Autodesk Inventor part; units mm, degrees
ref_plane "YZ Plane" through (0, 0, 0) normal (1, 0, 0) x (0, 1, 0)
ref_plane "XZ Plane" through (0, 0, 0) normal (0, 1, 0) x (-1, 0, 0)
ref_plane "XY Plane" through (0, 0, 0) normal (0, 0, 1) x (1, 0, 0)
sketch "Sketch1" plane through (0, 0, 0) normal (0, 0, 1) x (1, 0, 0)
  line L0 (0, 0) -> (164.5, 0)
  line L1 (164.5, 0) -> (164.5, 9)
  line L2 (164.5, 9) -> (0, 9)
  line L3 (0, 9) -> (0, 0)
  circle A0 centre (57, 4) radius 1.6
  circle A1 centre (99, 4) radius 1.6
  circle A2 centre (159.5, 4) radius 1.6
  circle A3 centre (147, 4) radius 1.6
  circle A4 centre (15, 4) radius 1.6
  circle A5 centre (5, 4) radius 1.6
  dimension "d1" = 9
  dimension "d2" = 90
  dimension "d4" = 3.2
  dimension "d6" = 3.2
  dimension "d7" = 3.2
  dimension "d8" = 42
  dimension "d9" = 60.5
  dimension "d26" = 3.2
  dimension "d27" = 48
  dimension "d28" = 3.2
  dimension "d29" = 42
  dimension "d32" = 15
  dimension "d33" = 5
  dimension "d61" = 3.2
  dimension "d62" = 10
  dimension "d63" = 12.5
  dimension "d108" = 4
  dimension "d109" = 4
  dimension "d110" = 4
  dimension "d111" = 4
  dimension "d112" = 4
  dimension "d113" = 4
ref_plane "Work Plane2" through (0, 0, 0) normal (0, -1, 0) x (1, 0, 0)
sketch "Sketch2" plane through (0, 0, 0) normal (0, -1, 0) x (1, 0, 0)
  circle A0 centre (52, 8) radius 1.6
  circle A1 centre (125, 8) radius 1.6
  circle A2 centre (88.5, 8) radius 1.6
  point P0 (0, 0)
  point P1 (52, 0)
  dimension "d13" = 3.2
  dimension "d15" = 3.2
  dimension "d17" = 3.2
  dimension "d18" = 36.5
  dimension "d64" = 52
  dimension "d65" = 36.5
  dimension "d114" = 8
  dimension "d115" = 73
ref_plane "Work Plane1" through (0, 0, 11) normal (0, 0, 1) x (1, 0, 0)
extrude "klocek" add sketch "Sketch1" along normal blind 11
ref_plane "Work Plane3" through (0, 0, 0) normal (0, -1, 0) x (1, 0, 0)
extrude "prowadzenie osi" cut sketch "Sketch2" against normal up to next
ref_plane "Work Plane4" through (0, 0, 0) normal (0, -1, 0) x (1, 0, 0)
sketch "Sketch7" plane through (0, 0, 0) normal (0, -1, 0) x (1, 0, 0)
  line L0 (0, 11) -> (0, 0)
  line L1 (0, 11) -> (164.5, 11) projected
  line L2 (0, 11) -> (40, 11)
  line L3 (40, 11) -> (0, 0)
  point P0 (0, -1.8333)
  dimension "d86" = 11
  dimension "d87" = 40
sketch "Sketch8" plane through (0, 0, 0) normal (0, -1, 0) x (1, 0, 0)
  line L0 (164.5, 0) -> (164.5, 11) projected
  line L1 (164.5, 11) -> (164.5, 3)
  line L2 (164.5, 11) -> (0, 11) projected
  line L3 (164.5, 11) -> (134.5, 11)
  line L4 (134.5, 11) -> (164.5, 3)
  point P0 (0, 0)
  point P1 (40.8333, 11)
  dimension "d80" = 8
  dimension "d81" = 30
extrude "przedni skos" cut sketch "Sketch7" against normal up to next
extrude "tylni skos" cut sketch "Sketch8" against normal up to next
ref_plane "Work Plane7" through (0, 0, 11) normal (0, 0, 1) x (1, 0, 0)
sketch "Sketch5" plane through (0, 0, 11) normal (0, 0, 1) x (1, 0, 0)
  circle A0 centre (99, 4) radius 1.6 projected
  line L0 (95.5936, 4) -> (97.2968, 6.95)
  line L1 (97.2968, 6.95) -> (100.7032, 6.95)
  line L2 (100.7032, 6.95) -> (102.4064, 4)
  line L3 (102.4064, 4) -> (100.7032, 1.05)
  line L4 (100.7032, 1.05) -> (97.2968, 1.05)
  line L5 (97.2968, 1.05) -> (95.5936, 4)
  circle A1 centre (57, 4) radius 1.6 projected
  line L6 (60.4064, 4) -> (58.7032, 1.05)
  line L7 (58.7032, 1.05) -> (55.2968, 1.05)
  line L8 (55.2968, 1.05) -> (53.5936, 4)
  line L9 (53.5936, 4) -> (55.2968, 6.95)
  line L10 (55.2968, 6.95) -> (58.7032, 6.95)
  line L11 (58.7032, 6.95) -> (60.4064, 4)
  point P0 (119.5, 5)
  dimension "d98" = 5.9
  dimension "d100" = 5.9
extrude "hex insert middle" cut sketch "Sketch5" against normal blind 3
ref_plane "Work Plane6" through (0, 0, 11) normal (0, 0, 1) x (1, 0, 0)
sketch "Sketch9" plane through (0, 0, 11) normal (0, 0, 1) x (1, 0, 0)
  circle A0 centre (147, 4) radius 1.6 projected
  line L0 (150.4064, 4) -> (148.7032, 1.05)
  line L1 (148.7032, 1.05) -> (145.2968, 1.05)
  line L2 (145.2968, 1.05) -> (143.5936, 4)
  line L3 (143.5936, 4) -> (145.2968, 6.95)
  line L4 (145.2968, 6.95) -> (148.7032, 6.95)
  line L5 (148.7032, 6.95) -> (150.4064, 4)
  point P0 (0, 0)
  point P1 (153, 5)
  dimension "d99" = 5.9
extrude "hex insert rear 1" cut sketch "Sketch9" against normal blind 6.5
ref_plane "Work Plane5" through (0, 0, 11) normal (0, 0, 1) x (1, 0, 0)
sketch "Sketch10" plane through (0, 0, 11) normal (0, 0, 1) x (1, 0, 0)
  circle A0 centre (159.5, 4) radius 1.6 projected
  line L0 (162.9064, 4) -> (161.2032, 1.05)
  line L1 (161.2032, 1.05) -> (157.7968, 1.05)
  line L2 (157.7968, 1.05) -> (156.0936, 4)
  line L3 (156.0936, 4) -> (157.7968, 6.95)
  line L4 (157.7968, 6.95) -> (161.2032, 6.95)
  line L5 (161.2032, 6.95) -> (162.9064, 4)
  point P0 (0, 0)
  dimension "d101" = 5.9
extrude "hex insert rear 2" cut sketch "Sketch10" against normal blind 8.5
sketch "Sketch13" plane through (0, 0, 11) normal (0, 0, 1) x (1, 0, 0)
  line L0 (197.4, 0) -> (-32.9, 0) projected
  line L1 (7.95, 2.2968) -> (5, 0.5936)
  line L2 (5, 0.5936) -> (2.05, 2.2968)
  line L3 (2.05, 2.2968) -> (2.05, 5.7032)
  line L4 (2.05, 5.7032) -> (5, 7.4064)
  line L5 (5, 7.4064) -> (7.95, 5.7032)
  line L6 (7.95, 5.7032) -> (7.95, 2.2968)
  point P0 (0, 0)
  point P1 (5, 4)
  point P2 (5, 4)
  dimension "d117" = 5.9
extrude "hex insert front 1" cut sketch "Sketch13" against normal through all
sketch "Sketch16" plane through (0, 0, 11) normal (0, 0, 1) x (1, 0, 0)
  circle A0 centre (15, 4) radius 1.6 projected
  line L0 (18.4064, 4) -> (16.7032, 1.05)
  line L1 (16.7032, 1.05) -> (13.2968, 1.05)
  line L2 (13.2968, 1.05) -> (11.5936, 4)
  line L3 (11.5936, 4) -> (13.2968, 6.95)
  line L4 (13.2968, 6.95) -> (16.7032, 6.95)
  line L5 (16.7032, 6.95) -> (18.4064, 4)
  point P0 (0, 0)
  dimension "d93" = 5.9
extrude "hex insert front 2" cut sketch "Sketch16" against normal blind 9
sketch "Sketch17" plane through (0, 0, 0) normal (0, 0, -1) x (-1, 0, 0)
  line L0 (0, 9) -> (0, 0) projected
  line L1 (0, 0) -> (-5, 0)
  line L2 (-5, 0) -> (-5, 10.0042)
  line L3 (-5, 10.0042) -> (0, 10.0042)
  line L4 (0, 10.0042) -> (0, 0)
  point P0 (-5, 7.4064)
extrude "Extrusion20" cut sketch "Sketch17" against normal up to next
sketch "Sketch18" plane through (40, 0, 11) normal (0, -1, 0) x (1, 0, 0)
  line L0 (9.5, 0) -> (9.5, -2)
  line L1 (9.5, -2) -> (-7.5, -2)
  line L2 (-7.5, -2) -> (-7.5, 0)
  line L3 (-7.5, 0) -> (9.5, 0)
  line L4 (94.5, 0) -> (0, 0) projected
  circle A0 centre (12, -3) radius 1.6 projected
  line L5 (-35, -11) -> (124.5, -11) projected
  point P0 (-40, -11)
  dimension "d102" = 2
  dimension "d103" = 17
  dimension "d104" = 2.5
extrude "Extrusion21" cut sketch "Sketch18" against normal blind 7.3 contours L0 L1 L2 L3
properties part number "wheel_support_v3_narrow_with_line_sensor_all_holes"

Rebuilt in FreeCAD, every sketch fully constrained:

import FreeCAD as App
import Part
import Sketcher

V = App.Vector
Q = App.Units.Quantity


def add_polygon(sketch, points):
    """Adds a closed chain of lines whose ends are joined by coincident constraints."""
    first, n = sketch.GeometryCount, len(points)
    for a, b in zip(points, points[1:] + points[:1]):
        sketch.addGeometry(Part.LineSegment(App.Vector(*a, 0), App.Vector(*b, 0)), False)
    for i in range(n):
        sketch.addConstraint(Sketcher.Constraint("Coincident", first + i, 2, first + (i + 1) % n, 1))

doc = App.newDocument("Part")
body = doc.addObject("PartDesign::Body", "Body")

sketch1 = body.newObject("Sketcher::SketchObject", "Sketch")
sketch1.AttachmentSupport = (doc.getObject("XY_Plane"), [""])
sketch1.MapMode = "FlatFace"
add_polygon(sketch1, [(0, 9), (0, 0), (164.5, 0), (164.5, 9)])
sketch1.addGeometry(Part.Circle(V(5, 4, 0), V(0, 0, 1), 1.6), False)
sketch1.addGeometry(Part.Circle(V(15, 4, 0), V(0, 0, 1), 1.6), False)
sketch1.addGeometry(Part.Circle(V(57, 4, 0), V(0, 0, 1), 1.6), False)
sketch1.addGeometry(Part.Circle(V(99, 4, 0), V(0, 0, 1), 1.6), False)
sketch1.addGeometry(Part.Circle(V(147, 4, 0), V(0, 0, 1), 1.6), False)
sketch1.addGeometry(Part.Circle(V(159.5, 4, 0), V(0, 0, 1), 1.6), False)
sketch1.addConstraint(Sketcher.Constraint("Vertical", 0))
sketch1.addConstraint(Sketcher.Constraint("Horizontal", 1))
sketch1.addConstraint(Sketcher.Constraint("Vertical", 2))
sketch1.addConstraint(Sketcher.Constraint("Horizontal", 3))
sketch1.addConstraint(Sketcher.Constraint("Coincident", 0, 2, -1, 1))
sketch1.addConstraint(Sketcher.Constraint("Equal", 4, 5))
sketch1.addConstraint(Sketcher.Constraint("Equal", 5, 6))
sketch1.addConstraint(Sketcher.Constraint("Equal", 6, 7))
sketch1.addConstraint(Sketcher.Constraint("Equal", 7, 8))
sketch1.addConstraint(Sketcher.Constraint("Equal", 8, 9))
sketch1.addConstraint(Sketcher.Constraint("Horizontal", 4, 3, 5, 3))
sketch1.addConstraint(Sketcher.Constraint("Horizontal", 5, 3, 6, 3))
sketch1.addConstraint(Sketcher.Constraint("Horizontal", 6, 3, 7, 3))
sketch1.addConstraint(Sketcher.Constraint("Horizontal", 7, 3, 8, 3))
sketch1.addConstraint(Sketcher.Constraint("Horizontal", 8, 3, 9, 3))
sketch1.addConstraint(Sketcher.Constraint("Diameter", 4, Q("3.2 mm")))
sketch1.addConstraint(Sketcher.Constraint("DistanceY", 0, 2, 0, 1, Q("9 mm")))
sketch1.addConstraint(Sketcher.Constraint("DistanceX", -1, 1, 4, 3, Q("5 mm")))
sketch1.addConstraint(Sketcher.Constraint("DistanceY", -1, 1, 4, 3, Q("4 mm")))
sketch1.addConstraint(Sketcher.Constraint("DistanceX", -1, 1, 5, 3, Q("15 mm")))
sketch1.addConstraint(Sketcher.Constraint("DistanceX", 5, 3, 6, 3, Q("42 mm")))
sketch1.addConstraint(Sketcher.Constraint("DistanceX", 6, 3, 7, 3, Q("42 mm")))
sketch1.addConstraint(Sketcher.Constraint("DistanceX", 7, 3, 8, 3, Q("48 mm")))
sketch1.addConstraint(Sketcher.Constraint("DistanceX", 9, 3, 1, 2, Q("5 mm")))
sketch1.addConstraint(Sketcher.Constraint("DistanceX", 8, 3, 9, 3, Q("12.5 mm")))
pad1 = body.newObject("PartDesign::Pad", "Pad")
pad1.Profile = sketch1
pad1.Length = 11

sketch2 = body.newObject("Sketcher::SketchObject", "Sketch001")
sketch2.AttachmentSupport = (doc.getObject("XZ_Plane"), [""])
sketch2.MapMode = "FlatFace"
sketch2.addGeometry(Part.Circle(V(52, 8, 0), V(0, 0, 1), 1.6), False)
sketch2.addGeometry(Part.Circle(V(125, 8, 0), V(0, 0, 1), 1.6), False)
sketch2.addGeometry(Part.Circle(V(88.5, 8, 0), V(0, 0, 1), 1.6), False)
sketch2.addConstraint(Sketcher.Constraint("Equal", 0, 1))
sketch2.addConstraint(Sketcher.Constraint("Equal", 1, 2))
sketch2.addConstraint(Sketcher.Constraint("Horizontal", 0, 3, 1, 3))
sketch2.addConstraint(Sketcher.Constraint("Horizontal", 1, 3, 2, 3))
sketch2.addConstraint(Sketcher.Constraint("Diameter", 0, Q("3.2 mm")))
sketch2.addConstraint(Sketcher.Constraint("DistanceX", -1, 1, 0, 3, Q("52 mm")))
sketch2.addConstraint(Sketcher.Constraint("DistanceY", -1, 1, 0, 3, Q("8 mm")))
sketch2.addConstraint(Sketcher.Constraint("DistanceX", 0, 3, 1, 3, Q("73 mm")))
sketch2.addConstraint(Sketcher.Constraint("DistanceX", 0, 3, 2, 3, Q("36.5 mm")))
pocket1 = body.newObject("PartDesign::Pocket", "Pocket")
pocket1.Profile = sketch2
pocket1.Type = "UpToFirst"

sketch3 = body.newObject("Sketcher::SketchObject", "Sketch002")
sketch3.AttachmentSupport = (doc.getObject("XZ_Plane"), [""])
sketch3.MapMode = "FlatFace"
add_polygon(sketch3, [(40, 11), (0, 11), (0, 0)])
sketch3.addConstraint(Sketcher.Constraint("Horizontal", 0))
sketch3.addConstraint(Sketcher.Constraint("Vertical", 1))
sketch3.addConstraint(Sketcher.Constraint("Coincident", 1, 2, -1, 1))
sketch3.addConstraint(Sketcher.Constraint("DistanceX", 0, 2, 0, 1, Q("40 mm")))
sketch3.addConstraint(Sketcher.Constraint("DistanceY", 1, 2, 1, 1, Q("11 mm")))
pocket2 = body.newObject("PartDesign::Pocket", "Pocket001")
pocket2.Profile = sketch3
pocket2.Type = "UpToFirst"

sketch4 = body.newObject("Sketcher::SketchObject", "Sketch003")
sketch4.AttachmentSupport = (doc.getObject("XZ_Plane"), [""])
sketch4.MapMode = "FlatFace"
add_polygon(sketch4, [(134, 11), (164, 3), (164, 11)])
sketch4.addConstraint(Sketcher.Constraint("Vertical", 1))
sketch4.addConstraint(Sketcher.Constraint("Horizontal", 2))
sketch4.addConstraint(Sketcher.Constraint("DistanceX", 2, 2, 2, 1, Q("30 mm")))
sketch4.addConstraint(Sketcher.Constraint("DistanceY", 1, 1, 1, 2, Q("8 mm")))
sketch4.addConstraint(Sketcher.Constraint("DistanceY", -1, 1, 0, 2, Q("3 mm")))
sketch4.addConstraint(Sketcher.Constraint("DistanceX", -1, 1, 0, 2, Q("164.5 mm")))
pocket3 = body.newObject("PartDesign::Pocket", "Pocket002")
pocket3.Profile = sketch4
pocket3.Type = "UpToFirst"

sketch5 = body.newObject("Sketcher::SketchObject", "Sketch004")
sketch5.AttachmentSupport = (doc.getObject("XY_Plane"), [""])
sketch5.MapMode = "FlatFace"
sketch5.AttachmentOffset = App.Placement(V(0, 0, 11), App.Rotation())
add_polygon(sketch5, [(97.3, 7), (95.6, 4), (97.3, 1.1), (100.7, 1.1), (102.4, 4), (100.7, 7)])
sketch5.addGeometry(Part.Circle(V(99, 4, 0), V(0, 0, 1), 1.6), False)
add_polygon(sketch5, [(58.7, 1.1), (60.4, 4), (58.7, 7), (55.3, 7), (53.6, 4), (55.3, 1.1)])
sketch5.addGeometry(Part.Circle(V(57, 4, 0), V(0, 0, 1), 1.6), False)
sketch5.addConstraint(Sketcher.Constraint("Horizontal", 2))
sketch5.addConstraint(Sketcher.Constraint("Horizontal", 5))
sketch5.addConstraint(Sketcher.Constraint("Horizontal", 9))
sketch5.addConstraint(Sketcher.Constraint("Horizontal", 12))
sketch5.addConstraint(Sketcher.Constraint("Equal", 6, 13))
sketch5.addConstraint(Sketcher.Constraint("Parallel", 0, 3))
sketch5.addConstraint(Sketcher.Constraint("Parallel", 1, 4))
sketch5.addConstraint(Sketcher.Constraint("Parallel", 3, 7))
sketch5.addConstraint(Sketcher.Constraint("Parallel", 4, 8))
sketch5.addConstraint(Sketcher.Constraint("Parallel", 7, 10))
sketch5.addConstraint(Sketcher.Constraint("Parallel", 8, 11))
sketch5.addConstraint(Sketcher.Constraint("Horizontal", 6, 3, 13, 3))
sketch5.addConstraint(Sketcher.Constraint("Horizontal", 13, 3, 0, 2))
sketch5.addConstraint(Sketcher.Constraint("Horizontal", 0, 2, 3, 2))
sketch5.addConstraint(Sketcher.Constraint("Horizontal", 3, 2, 7, 2))
sketch5.addConstraint(Sketcher.Constraint("Horizontal", 5, 2, 8, 2))
sketch5.addConstraint(Sketcher.Constraint("Horizontal", 7, 2, 10, 2))
sketch5.addConstraint(Sketcher.Constraint("Horizontal", 2, 2, 11, 2))
sketch5.addConstraint(Sketcher.Constraint("Vertical", 2, 2, 4, 2))
sketch5.addConstraint(Sketcher.Constraint("Vertical", 1, 2, 5, 2))
sketch5.addConstraint(Sketcher.Constraint("Equal", 5, 9))
sketch5.addConstraint(Sketcher.Constraint("Diameter", 6, Q("3.2 mm")))
sketch5.addConstraint(Sketcher.Constraint("DistanceY", 2, 2, 4, 2, Q("5.9 mm")))
sketch5.addConstraint(Sketcher.Constraint("Angle", 0, Q("-120.0002 deg")))
sketch5.addConstraint(Sketcher.Constraint("DistanceX", -1, 1, 6, 3, Q("99 mm")))
sketch5.addConstraint(Sketcher.Constraint("DistanceY", -1, 1, 6, 3, Q("4 mm")))
sketch5.addConstraint(Sketcher.Constraint("DistanceX", -1, 1, 13, 3, Q("57 mm")))
sketch5.addConstraint(Sketcher.Constraint("DistanceX", 9, 2, 5, 2, Q("42 mm")))
sketch5.addConstraint(Sketcher.Constraint("DistanceX", 2, 1, 2, 2, Q("3.4064 mm")))
sketch5.addConstraint(Sketcher.Constraint("DistanceX", -1, 1, 0, 2, Q("95.5936 mm")))
pocket4 = body.newObject("PartDesign::Pocket", "Pocket003")
pocket4.Profile = sketch5
pocket4.Length = 3

sketch6 = body.newObject("Sketcher::SketchObject", "Sketch005")
sketch6.AttachmentSupport = (doc.getObject("XY_Plane"), [""])
sketch6.MapMode = "FlatFace"
sketch6.AttachmentOffset = App.Placement(V(0, 0, 11), App.Rotation())
add_polygon(sketch6, [(148.7, 1.1), (150.4, 4), (148.7, 7), (145.3, 7), (143.6, 4), (145.3, 1.1)])
sketch6.addGeometry(Part.Circle(V(147, 4, 0), V(0, 0, 1), 1.6), False)
sketch6.addConstraint(Sketcher.Constraint("Horizontal", 2))
sketch6.addConstraint(Sketcher.Constraint("Horizontal", 5))
sketch6.addConstraint(Sketcher.Constraint("Parallel", 0, 3))
sketch6.addConstraint(Sketcher.Constraint("Parallel", 1, 4))
sketch6.addConstraint(Sketcher.Constraint("Horizontal", 6, 3, 0, 2))
sketch6.addConstraint(Sketcher.Constraint("Horizontal", 0, 2, 3, 2))
sketch6.addConstraint(Sketcher.Constraint("Vertical", 2, 2, 4, 2))
sketch6.addConstraint(Sketcher.Constraint("Vertical", 1, 2, 5, 2))
sketch6.addConstraint(Sketcher.Constraint("Diameter", 6, Q("3.2 mm")))
sketch6.addConstraint(Sketcher.Constraint("DistanceY", 4, 2, 2, 2, Q("5.9 mm")))
sketch6.addConstraint(Sketcher.Constraint("Angle", 0, Q("59.9998 deg")))
sketch6.addConstraint(Sketcher.Constraint("DistanceX", -1, 1, 6, 3, Q("147 mm")))
sketch6.addConstraint(Sketcher.Constraint("DistanceY", -1, 1, 6, 3, Q("4 mm")))
sketch6.addConstraint(Sketcher.Constraint("DistanceX", 2, 2, 2, 1, Q("3.4064 mm")))
sketch6.addConstraint(Sketcher.Constraint("DistanceX", -1, 1, 0, 2, Q("150.4064 mm")))
pocket5 = body.newObject("PartDesign::Pocket", "Pocket004")
pocket5.Profile = sketch6
pocket5.Length = 6.5

sketch7 = body.newObject("Sketcher::SketchObject", "Sketch006")
sketch7.AttachmentSupport = (doc.getObject("XY_Plane"), [""])
sketch7.MapMode = "FlatFace"
sketch7.AttachmentOffset = App.Placement(V(0, 0, 11), App.Rotation())
add_polygon(sketch7, [(161.2, 1.1), (162.9, 4), (161.2, 7), (157.8, 7), (156.1, 4), (157.8, 1.1)])
sketch7.addGeometry(Part.Circle(V(159.5, 4, 0), V(0, 0, 1), 1.6), False)
sketch7.addConstraint(Sketcher.Constraint("Horizontal", 2))
sketch7.addConstraint(Sketcher.Constraint("Horizontal", 5))
sketch7.addConstraint(Sketcher.Constraint("Parallel", 0, 3))
sketch7.addConstraint(Sketcher.Constraint("Parallel", 1, 4))
sketch7.addConstraint(Sketcher.Constraint("Horizontal", 6, 3, 0, 2))
sketch7.addConstraint(Sketcher.Constraint("Horizontal", 0, 2, 3, 2))
sketch7.addConstraint(Sketcher.Constraint("Vertical", 2, 2, 4, 2))
sketch7.addConstraint(Sketcher.Constraint("Vertical", 1, 2, 5, 2))
sketch7.addConstraint(Sketcher.Constraint("Diameter", 6, Q("3.2 mm")))
sketch7.addConstraint(Sketcher.Constraint("DistanceY", 4, 2, 2, 2, Q("5.9 mm")))
sketch7.addConstraint(Sketcher.Constraint("Angle", 0, Q("59.9998 deg")))
sketch7.addConstraint(Sketcher.Constraint("DistanceY", -1, 1, 6, 3, Q("4 mm")))
sketch7.addConstraint(Sketcher.Constraint("DistanceX", -1, 1, 6, 3, Q("159.5 mm")))
sketch7.addConstraint(Sketcher.Constraint("DistanceX", 2, 2, 2, 1, Q("3.4064 mm")))
sketch7.addConstraint(Sketcher.Constraint("DistanceX", -1, 1, 0, 2, Q("162.9064 mm")))
pocket6 = body.newObject("PartDesign::Pocket", "Pocket005")
pocket6.Profile = sketch7
pocket6.Length = 8.5

sketch8 = body.newObject("Sketcher::SketchObject", "Sketch007")
sketch8.AttachmentSupport = (doc.getObject("XY_Plane"), [""])
sketch8.MapMode = "FlatFace"
sketch8.AttachmentOffset = App.Placement(V(0, 0, 11), App.Rotation())
add_polygon(sketch8, [(5, 0.6), (8, 2.3), (8, 5.7), (5, 7.4), (2, 5.7), (2, 2.3)])
sketch8.addConstraint(Sketcher.Constraint("Vertical", 1))
sketch8.addConstraint(Sketcher.Constraint("Vertical", 4))
sketch8.addConstraint(Sketcher.Constraint("Parallel", 0, 3))
sketch8.addConstraint(Sketcher.Constraint("Parallel", 2, 5))
sketch8.addConstraint(Sketcher.Constraint("Horizontal", 1, 2, 3, 2))
sketch8.addConstraint(Sketcher.Constraint("Horizontal", 0, 2, 4, 2))
sketch8.addConstraint(Sketcher.Constraint("Vertical", 2, 2, 5, 2))
sketch8.addConstraint(Sketcher.Constraint("DistanceX", 3, 2, 1, 2, Q("5.9 mm")))
sketch8.addConstraint(Sketcher.Constraint("Angle", 0, Q("30.0002 deg")))
sketch8.addConstraint(Sketcher.Constraint("DistanceX", -1, 1, 2, 2, Q("5 mm")))
sketch8.addConstraint(Sketcher.Constraint("DistanceY", 1, 1, 1, 2, Q("3.4064 mm")))
sketch8.addConstraint(Sketcher.Constraint("DistanceY", -1, 1, 0, 2, Q("2.2968 mm")))
pocket7 = body.newObject("PartDesign::Pocket", "Pocket006")
pocket7.Profile = sketch8
pocket7.Type = "ThroughAll"

sketch9 = body.newObject("Sketcher::SketchObject", "Sketch008")
sketch9.AttachmentSupport = (doc.getObject("XY_Plane"), [""])
sketch9.MapMode = "FlatFace"
sketch9.AttachmentOffset = App.Placement(V(0, 0, 11), App.Rotation())
add_polygon(sketch9, [(16.7, 1.1), (18.4, 4), (16.7, 7), (13.3, 7), (11.6, 4), (13.3, 1.1)])
sketch9.addGeometry(Part.Circle(V(15, 4, 0), V(0, 0, 1), 1.6), False)
sketch9.addConstraint(Sketcher.Constraint("Horizontal", 2))
sketch9.addConstraint(Sketcher.Constraint("Horizontal", 5))
sketch9.addConstraint(Sketcher.Constraint("Parallel", 0, 3))
sketch9.addConstraint(Sketcher.Constraint("Parallel", 1, 4))
sketch9.addConstraint(Sketcher.Constraint("Horizontal", 6, 3, 0, 2))
sketch9.addConstraint(Sketcher.Constraint("Horizontal", 0, 2, 3, 2))
sketch9.addConstraint(Sketcher.Constraint("Vertical", 2, 2, 4, 2))
sketch9.addConstraint(Sketcher.Constraint("Vertical", 1, 2, 5, 2))
sketch9.addConstraint(Sketcher.Constraint("Diameter", 6, Q("3.2 mm")))
sketch9.addConstraint(Sketcher.Constraint("DistanceY", 4, 2, 2, 2, Q("5.9 mm")))
sketch9.addConstraint(Sketcher.Constraint("Angle", 0, Q("59.9998 deg")))
sketch9.addConstraint(Sketcher.Constraint("DistanceX", -1, 1, 6, 3, Q("15 mm")))
sketch9.addConstraint(Sketcher.Constraint("DistanceY", -1, 1, 6, 3, Q("4 mm")))
sketch9.addConstraint(Sketcher.Constraint("DistanceX", 2, 2, 2, 1, Q("3.4064 mm")))
sketch9.addConstraint(Sketcher.Constraint("DistanceX", -1, 1, 0, 2, Q("18.4064 mm")))
pocket8 = body.newObject("PartDesign::Pocket", "Pocket007")
pocket8.Profile = sketch9
pocket8.Length = 9

sketch10 = body.newObject("Sketcher::SketchObject", "Sketch009")
sketch10.AttachmentSupport = (doc.getObject("XY_Plane"), [""])
sketch10.MapMode = "FlatFace"
add_polygon(sketch10, [(0, 0), (0, 10), (5, 10), (5, 0)])
sketch10.addConstraint(Sketcher.Constraint("Vertical", 0))
sketch10.addConstraint(Sketcher.Constraint("Horizontal", 1))
sketch10.addConstraint(Sketcher.Constraint("Vertical", 2))
sketch10.addConstraint(Sketcher.Constraint("Horizontal", 3))
sketch10.addConstraint(Sketcher.Constraint("Coincident", 3, 2, -1, 1))
sketch10.addConstraint(Sketcher.Constraint("DistanceX", 1, 1, 1, 2, Q("5 mm")))
sketch10.addConstraint(Sketcher.Constraint("DistanceY", 0, 1, 0, 2, Q("10.0042 mm")))
pocket9 = body.newObject("PartDesign::Pocket", "Pocket008")
pocket9.Profile = sketch10
pocket9.Length = 1.375
pocket9.Reversed = True

sketch11 = body.newObject("Sketcher::SketchObject", "Sketch010")
sketch11.AttachmentSupport = (doc.getObject("XZ_Plane"), [""])
sketch11.MapMode = "FlatFace"
add_polygon(sketch11, [(49.5, 9), (49.5, 11), (32.5, 11), (32.5, 9)])
sketch11.addConstraint(Sketcher.Constraint("Vertical", 0))
sketch11.addConstraint(Sketcher.Constraint("Horizontal", 1))
sketch11.addConstraint(Sketcher.Constraint("Vertical", 2))
sketch11.addConstraint(Sketcher.Constraint("Horizontal", 3))
sketch11.addConstraint(Sketcher.Constraint("DistanceX", 1, 2, 1, 1, Q("17 mm")))
sketch11.addConstraint(Sketcher.Constraint("DistanceY", 0, 1, 0, 2, Q("2 mm")))
sketch11.addConstraint(Sketcher.Constraint("DistanceY", -1, 1, 0, 2, Q("11 mm")))
sketch11.addConstraint(Sketcher.Constraint("DistanceX", -1, 1, 0, 2, Q("49.5 mm")))
pocket10 = body.newObject("PartDesign::Pocket", "Pocket009")
pocket10.Profile = sketch11
pocket10.Length = 7.3

doc.recompute()
